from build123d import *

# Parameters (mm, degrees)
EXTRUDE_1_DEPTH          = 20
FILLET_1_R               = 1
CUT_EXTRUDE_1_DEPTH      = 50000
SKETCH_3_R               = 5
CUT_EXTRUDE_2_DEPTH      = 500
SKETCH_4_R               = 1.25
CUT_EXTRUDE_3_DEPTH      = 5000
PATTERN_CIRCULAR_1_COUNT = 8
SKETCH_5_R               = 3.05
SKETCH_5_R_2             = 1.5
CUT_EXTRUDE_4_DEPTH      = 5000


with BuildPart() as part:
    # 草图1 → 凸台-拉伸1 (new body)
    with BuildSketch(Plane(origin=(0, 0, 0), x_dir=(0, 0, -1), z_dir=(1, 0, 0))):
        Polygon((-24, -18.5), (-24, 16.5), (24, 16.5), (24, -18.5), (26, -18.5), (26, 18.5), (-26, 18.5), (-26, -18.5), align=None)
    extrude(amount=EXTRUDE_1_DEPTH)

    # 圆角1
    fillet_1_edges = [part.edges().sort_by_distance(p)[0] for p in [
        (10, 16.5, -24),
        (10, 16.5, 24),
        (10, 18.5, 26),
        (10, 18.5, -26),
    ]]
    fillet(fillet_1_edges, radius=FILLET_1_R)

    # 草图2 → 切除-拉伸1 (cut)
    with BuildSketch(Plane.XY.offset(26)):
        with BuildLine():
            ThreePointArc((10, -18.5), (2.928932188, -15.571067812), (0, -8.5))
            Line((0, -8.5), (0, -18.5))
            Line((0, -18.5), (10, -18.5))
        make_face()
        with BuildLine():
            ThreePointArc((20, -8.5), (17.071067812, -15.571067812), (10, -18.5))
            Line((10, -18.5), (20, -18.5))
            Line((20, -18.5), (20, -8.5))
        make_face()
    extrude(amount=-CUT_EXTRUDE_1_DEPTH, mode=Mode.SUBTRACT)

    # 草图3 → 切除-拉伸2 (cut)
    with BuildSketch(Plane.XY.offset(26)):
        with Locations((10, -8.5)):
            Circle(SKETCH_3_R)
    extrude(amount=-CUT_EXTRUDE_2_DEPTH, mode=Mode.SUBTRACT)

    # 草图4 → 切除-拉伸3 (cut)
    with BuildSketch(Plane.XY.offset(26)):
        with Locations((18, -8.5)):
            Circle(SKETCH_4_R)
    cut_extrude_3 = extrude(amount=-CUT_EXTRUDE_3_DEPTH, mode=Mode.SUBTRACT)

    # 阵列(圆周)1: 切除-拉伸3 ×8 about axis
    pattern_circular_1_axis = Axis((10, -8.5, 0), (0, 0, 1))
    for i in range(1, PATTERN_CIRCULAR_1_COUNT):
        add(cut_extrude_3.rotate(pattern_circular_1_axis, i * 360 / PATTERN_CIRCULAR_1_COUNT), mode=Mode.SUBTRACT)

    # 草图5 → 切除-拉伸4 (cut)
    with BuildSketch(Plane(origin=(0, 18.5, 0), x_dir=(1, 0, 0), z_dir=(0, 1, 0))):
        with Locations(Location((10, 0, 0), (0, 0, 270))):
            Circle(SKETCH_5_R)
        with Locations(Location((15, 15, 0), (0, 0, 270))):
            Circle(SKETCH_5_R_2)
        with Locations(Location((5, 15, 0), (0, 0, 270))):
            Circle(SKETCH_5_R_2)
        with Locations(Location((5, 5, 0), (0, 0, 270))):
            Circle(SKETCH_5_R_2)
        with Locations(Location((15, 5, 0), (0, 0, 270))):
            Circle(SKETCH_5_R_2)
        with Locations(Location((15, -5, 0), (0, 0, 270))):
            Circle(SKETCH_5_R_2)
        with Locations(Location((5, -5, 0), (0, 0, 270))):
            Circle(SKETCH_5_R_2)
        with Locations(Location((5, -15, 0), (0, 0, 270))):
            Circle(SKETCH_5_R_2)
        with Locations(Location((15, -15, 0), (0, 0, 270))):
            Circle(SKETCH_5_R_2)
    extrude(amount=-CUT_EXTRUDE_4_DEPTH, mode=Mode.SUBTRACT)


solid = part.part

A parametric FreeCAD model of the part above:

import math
import FreeCAD as App
import Part
import Sketcher
from FreeCAD import Vector
Q = App.Units.Quantity


def edges_at(feature, points):
    """Names of the edges that pass closest to the given points."""
    edges = feature.Shape.Edges
    near = lambda p: min(range(len(edges)), key=lambda i: edges[i].distToShape(Part.Vertex(*p))[0])
    return sorted({f"Edge{near(p) + 1}" for p in points})

doc = App.newDocument("Part")
params = doc.addObject("Spreadsheet::Sheet", "Params")
for row, (alias, value) in enumerate([
    ("sketch1_width", "35 mm"),
    ("sketch1_width2", "37 mm"),
    ("sketch1_height", "48 mm"),
    ("sketch1_height2", "2 mm"),
    ("pad1_length", "20 mm"),
    ("fillet_radius", "1 mm"),
    ("sketch2_radius", "10 mm"),
    ("pocket1_length", "50000 mm"),
    ("sketch3_diameter", "10 mm"),
    ("pocket2_length", "500 mm"),
    ("sketch4_diameter", "2.5 mm"),
    ("pocket3_length", "5000 mm"),
    ("sketch5_diameter", "3 mm"),
    ("sketch5_diameter2", "6.1 mm"),
    ("pocket4_length", "5000 mm"),
], start=1):
    params.set(f"A{row}", alias)
    params.set(f"B{row}", "=" + value)
    params.setAlias(f"B{row}", alias)

body = doc.addObject("PartDesign::Body", "Body")

# Sketch on YZ plane
sketch1 = doc.addObject("Sketcher::SketchObject", "Sketch")
body.addObject(sketch1)
sketch1.AttachmentSupport = (doc.YZ_Plane, [""])
sketch1.MapMode = "FlatFace"
sketch1.addGeometry(Part.LineSegment(Vector(-18.5, 24, 0), Vector(16.5, 24, 0)), False)
sketch1.addGeometry(Part.LineSegment(Vector(16.5, 24, 0), Vector(16.5, -24, 0)), False)
sketch1.addGeometry(Part.LineSegment(Vector(16.5, -24, 0), Vector(-18.5, -24, 0)), False)
sketch1.addGeometry(Part.LineSegment(Vector(-18.5, -24, 0), Vector(-18.5, -26, 0)), False)
sketch1.addGeometry(Part.LineSegment(Vector(-18.5, -26, 0), Vector(18.5, -26, 0)), False)
sketch1.addGeometry(Part.LineSegment(Vector(18.5, -26, 0), Vector(18.5, 26, 0)), False)
sketch1.addGeometry(Part.LineSegment(Vector(18.5, 26, 0), Vector(-18.5, 26, 0)), False)
sketch1.addGeometry(Part.LineSegment(Vector(-18.5, 26, 0), Vector(-18.5, 24, 0)), False)
sketch1.addConstraint(Sketcher.Constraint("Coincident", 0, 2, 1, 1))
sketch1.addConstraint(Sketcher.Constraint("Coincident", 1, 2, 2, 1))
sketch1.addConstraint(Sketcher.Constraint("Coincident", 2, 2, 3, 1))
sketch1.addConstraint(Sketcher.Constraint("Coincident", 3, 2, 4, 1))
sketch1.addConstraint(Sketcher.Constraint("Coincident", 4, 2, 5, 1))
sketch1.addConstraint(Sketcher.Constraint("Coincident", 5, 2, 6, 1))
sketch1.addConstraint(Sketcher.Constraint("Coincident", 6, 2, 7, 1))
sketch1.addConstraint(Sketcher.Constraint("Coincident", 7, 2, 0, 1))
sketch1.addConstraint(Sketcher.Constraint("Horizontal", 0))
sketch1.addConstraint(Sketcher.Constraint("Vertical", 1))
sketch1.addConstraint(Sketcher.Constraint("Horizontal", 2))
sketch1.addConstraint(Sketcher.Constraint("Vertical", 3))
sketch1.addConstraint(Sketcher.Constraint("Horizontal", 4))
sketch1.addConstraint(Sketcher.Constraint("Vertical", 5))
sketch1.addConstraint(Sketcher.Constraint("Horizontal", 6))
sketch1.addConstraint(Sketcher.Constraint("Vertical", 7))
sketch1.addConstraint(Sketcher.Constraint("Symmetric", 3, 2, 5, 2, -1, 1))
sketch1.addConstraint(Sketcher.Constraint("Symmetric", 2, 2, 7, 2, -1))
sketch1.addConstraint(Sketcher.Constraint("DistanceX", 0, 1, 0, 2, Q("35 mm")))
sketch1.addConstraint(Sketcher.Constraint("DistanceX", 4, 1, 4, 2, Q("37 mm")))
sketch1.addConstraint(Sketcher.Constraint("DistanceY", 1, 2, 1, 1, Q("48 mm")))
sketch1.addConstraint(Sketcher.Constraint("DistanceY", 3, 2, 3, 1, Q("2 mm")))
sketch1.setExpression("Constraints[18]", "Params.sketch1_width")
sketch1.setExpression("Constraints[19]", "Params.sketch1_width2")
sketch1.setExpression("Constraints[20]", "Params.sketch1_height")
sketch1.setExpression("Constraints[21]", "Params.sketch1_height2")
pad1 = doc.addObject("PartDesign::Pad", "Pad")
body.addObject(pad1)
pad1.Profile = sketch1
pad1.setExpression("Length", "Params.pad1_length")
doc.recompute()

fillet = doc.addObject("PartDesign::Fillet", "Fillet")
body.addObject(fillet)
fillet.Base = (pad1, edges_at(pad1, [
    (10, 16.5, -24),
    (10, 16.5, 24),
    (10, 18.5, 26),
    (10, 18.5, -26),
]))
fillet.setExpression("Radius", "Params.fillet_radius")

# Sketch on XY plane
sketch2 = doc.addObject("Sketcher::SketchObject", "Sketch001")
body.addObject(sketch2)
sketch2.AttachmentSupport = (doc.XY_Plane, [""])
sketch2.MapMode = "FlatFace"
sketch2.AttachmentOffset = App.Placement(Vector(0, 0, 26), App.Rotation())
sketch2.addGeometry(Part.ArcOfCircle(Part.Circle(Vector(10, -8.5, 0), Vector(0, 0, 1), 10), math.radians(180), math.radians(270)), False)
sketch2.addGeometry(Part.LineSegment(Vector(0, -8.5, 0), Vector(0, -18.5, 0)), False)
sketch2.addGeometry(Part.LineSegment(Vector(0, -18.5, 0), Vector(10, -18.5, 0)), False)
sketch2.addGeometry(Part.ArcOfCircle(Part.Circle(Vector(10, -8.5, 0), Vector(0, 0, 1), 10), math.radians(-90), math.radians(0)), False)
sketch2.addGeometry(Part.LineSegment(Vector(10, -18.5, 0), Vector(20, -18.5, 0)), False)
sketch2.addGeometry(Part.LineSegment(Vector(20, -18.5, 0), Vector(20, -8.5, 0)), False)
sketch2.addConstraint(Sketcher.Constraint("Tangent", 0, 1, 1, 1))
sketch2.addConstraint(Sketcher.Constraint("Coincident", 1, 2, 2, 1))
sketch2.addConstraint(Sketcher.Constraint("Tangent", 2, 2, 0, 2))
sketch2.addConstraint(Sketcher.Constraint("Tangent", 3, 1, 4, 1))
sketch2.addConstraint(Sketcher.Constraint("Coincident", 4, 2, 5, 1))
sketch2.addConstraint(Sketcher.Constraint("Tangent", 5, 2, 3, 2))
sketch2.addConstraint(Sketcher.Constraint("Vertical", 1))
sketch2.addConstraint(Sketcher.Constraint("Horizontal", 2))
sketch2.addConstraint(Sketcher.Constraint("Horizontal", 4))
sketch2.addConstraint(Sketcher.Constraint("Vertical", 5))
sketch2.addConstraint(Sketcher.Constraint("Coincident", 3, 3, 0, 3))
sketch2.addConstraint(Sketcher.Constraint("Equal", 0, 3))
sketch2.addConstraint(Sketcher.Constraint("PointOnObject", 0, 1, -2))
sketch2.addConstraint(Sketcher.Constraint("Radius", 0, Q("10 mm")))
sketch2.addConstraint(Sketcher.Constraint("DistanceY", 0, 3, -1, 1, Q("8.5 mm")))
sketch2.setExpression("Constraints[13]", "Params.sketch2_radius")
pocket1 = doc.addObject("PartDesign::Pocket", "Pocket")
body.addObject(pocket1)
pocket1.Profile = sketch2
pocket1.setExpression("Length", "Params.pocket1_length")

# Sketch on XY plane
sketch3 = doc.addObject("Sketcher::SketchObject", "Sketch002")
body.addObject(sketch3)
sketch3.AttachmentSupport = (doc.XY_Plane, [""])
sketch3.MapMode = "FlatFace"
sketch3.AttachmentOffset = App.Placement(Vector(0, 0, 26), App.Rotation())
sketch3.addGeometry(Part.Circle(Vector(10, -8.5, 0), Vector(0, 0, 1), 5), False)
sketch3.addConstraint(Sketcher.Constraint("Diameter", 0, Q("10 mm")))
sketch3.addConstraint(Sketcher.Constraint("DistanceX", -1, 1, 0, 3, Q("10 mm")))
sketch3.addConstraint(Sketcher.Constraint("DistanceY", 0, 3, -1, 1, Q("8.5 mm")))
sketch3.setExpression("Constraints[0]", "Params.sketch3_diameter")
pocket2 = doc.addObject("PartDesign::Pocket", "Pocket001")
body.addObject(pocket2)
pocket2.Profile = sketch3
pocket2.setExpression("Length", "Params.pocket2_length")

# Sketch on XY plane
sketch4 = doc.addObject("Sketcher::SketchObject", "Sketch003")
body.addObject(sketch4)
sketch4.AttachmentSupport = (doc.XY_Plane, [""])
sketch4.MapMode = "FlatFace"
sketch4.AttachmentOffset = App.Placement(Vector(0, 0, 26), App.Rotation())
sketch4.addGeometry(Part.Circle(Vector(18, -8.5, 0), Vector(0, 0, 1), 1.25), False)
sketch4.addConstraint(Sketcher.Constraint("Diameter", 0, Q("2.5 mm")))
sketch4.addConstraint(Sketcher.Constraint("DistanceX", -1, 1, 0, 3, Q("18 mm")))
sketch4.addConstraint(Sketcher.Constraint("DistanceY", 0, 3, -1, 1, Q("8.5 mm")))
sketch4.setExpression("Constraints[0]", "Params.sketch4_diameter")
pocket3 = doc.addObject("PartDesign::Pocket", "Pocket002")
body.addObject(pocket3)
pocket3.Profile = sketch4
pocket3.setExpression("Length", "Params.pocket3_length")
doc.recompute()

datumline = doc.addObject("PartDesign::Line", "DatumLine")
body.addObject(datumline)
datumline.Placement = App.Placement(Vector(10, -8.5, 0), App.Rotation(Vector(0, 0, 1), Vector(0, 0, 1)))
polarpattern = doc.addObject("PartDesign::PolarPattern", "PolarPattern")
body.addObject(polarpattern)
polarpattern.Originals = [pocket3]
polarpattern.Axis = (datumline, [""])
polarpattern.Angle = 360
polarpattern.Occurrences = 8
body.Tip = polarpattern

# Sketch on XZ plane
sketch5 = doc.addObject("Sketcher::SketchObject", "Sketch004")
body.addObject(sketch5)
sketch5.AttachmentSupport = (doc.XZ_Plane, [""])
sketch5.MapMode = "FlatFace"
sketch5.AttachmentOffset = App.Placement(Vector(0, 0, -18.5), App.Rotation())
sketch5.addGeometry(Part.Circle(Vector(10, 0, 0), Vector(0, 0, 1), 3.05), False)
sketch5.addGeometry(Part.Circle(Vector(15, -15, 0), Vector(0, 0, 1), 1.5), False)
sketch5.addGeometry(Part.Circle(Vector(5, -15, 0), Vector(0, 0, 1), 1.5), False)
sketch5.addGeometry(Part.Circle(Vector(5, -5, 0), Vector(0, 0, 1), 1.5), False)
sketch5.addGeometry(Part.Circle(Vector(15, -5, 0), Vector(0, 0, 1), 1.5), False)
sketch5.addGeometry(Part.Circle(Vector(15, 5, 0), Vector(0, 0, 1), 1.5), False)
sketch5.addGeometry(Part.Circle(Vector(5, 5, 0), Vector(0, 0, 1), 1.5), False)
sketch5.addGeometry(Part.Circle(Vector(5, 15, 0), Vector(0, 0, 1), 1.5), False)
sketch5.addGeometry(Part.Circle(Vector(15, 15, 0), Vector(0, 0, 1), 1.5), False)
sketch5.addConstraint(Sketcher.Constraint("Equal", 1, 2))
sketch5.addConstraint(Sketcher.Constraint("Equal", 2, 3))
sketch5.addConstraint(Sketcher.Constraint("Equal", 3, 4))
sketch5.addConstraint(Sketcher.Constraint("Equal", 4, 5))
sketch5.addConstraint(Sketcher.Constraint("Equal", 5, 6))
sketch5.addConstraint(Sketcher.Constraint("Equal", 6, 7))
sketch5.addConstraint(Sketcher.Constraint("Equal", 7, 8))
sketch5.addConstraint(Sketcher.Constraint("Symmetric", 4, 3, 5, 3, -1))
sketch5.addConstraint(Sketcher.Constraint("Symmetric", 3, 3, 6, 3, -1))
sketch5.addConstraint(Sketcher.Constraint("Symmetric", 2, 3, 7, 3, -1))
sketch5.addConstraint(Sketcher.Constraint("Symmetric", 1, 3, 8, 3, -1))
sketch5.addConstraint(Sketcher.Constraint("PointOnObject", 0, 3, -1))
sketch5.addConstraint(Sketcher.Constraint("Horizontal", 1, 3, 2, 3))
sketch5.addConstraint(Sketcher.Constraint("Horizontal", 3, 3, 4, 3))
sketch5.addConstraint(Sketcher.Constraint("Vertical", 2, 3, 3, 3))
sketch5.addConstraint(Sketcher.Constraint("Vertical", 1, 3, 4, 3))
sketch5.addConstraint(Sketcher.Constraint("Diameter", 1, Q("3 mm")))
sketch5.addConstraint(Sketcher.Constraint("Diameter", 0, Q("6.1 mm")))
sketch5.addConstraint(Sketcher.Constraint("DistanceX", -1, 1, 0, 3, Q("10 mm")))
sketch5.addConstraint(Sketcher.Constraint("DistanceX", -1, 1, 1, 3, Q("15 mm")))
sketch5.addConstraint(Sketcher.Constraint("DistanceY", 1, 3, -1, 1, Q("15 mm")))
sketch5.addConstraint(Sketcher.Constraint("DistanceX", -1, 1, 2, 3, Q("5 mm")))
sketch5.addConstraint(Sketcher.Constraint("DistanceY", 3, 3, -1, 1, Q("5 mm")))
sketch5.setExpression("Constraints[16]", "Params.sketch5_diameter")
sketch5.setExpression("Constraints[17]", "Params.sketch5_diameter2")
pocket4 = doc.addObject("PartDesign::Pocket", "Pocket003")
body.addObject(pocket4)
pocket4.Profile = sketch5
pocket4.setExpression("Length", "Params.pocket4_length")
pocket4.Reversed = True

doc.recompute()
